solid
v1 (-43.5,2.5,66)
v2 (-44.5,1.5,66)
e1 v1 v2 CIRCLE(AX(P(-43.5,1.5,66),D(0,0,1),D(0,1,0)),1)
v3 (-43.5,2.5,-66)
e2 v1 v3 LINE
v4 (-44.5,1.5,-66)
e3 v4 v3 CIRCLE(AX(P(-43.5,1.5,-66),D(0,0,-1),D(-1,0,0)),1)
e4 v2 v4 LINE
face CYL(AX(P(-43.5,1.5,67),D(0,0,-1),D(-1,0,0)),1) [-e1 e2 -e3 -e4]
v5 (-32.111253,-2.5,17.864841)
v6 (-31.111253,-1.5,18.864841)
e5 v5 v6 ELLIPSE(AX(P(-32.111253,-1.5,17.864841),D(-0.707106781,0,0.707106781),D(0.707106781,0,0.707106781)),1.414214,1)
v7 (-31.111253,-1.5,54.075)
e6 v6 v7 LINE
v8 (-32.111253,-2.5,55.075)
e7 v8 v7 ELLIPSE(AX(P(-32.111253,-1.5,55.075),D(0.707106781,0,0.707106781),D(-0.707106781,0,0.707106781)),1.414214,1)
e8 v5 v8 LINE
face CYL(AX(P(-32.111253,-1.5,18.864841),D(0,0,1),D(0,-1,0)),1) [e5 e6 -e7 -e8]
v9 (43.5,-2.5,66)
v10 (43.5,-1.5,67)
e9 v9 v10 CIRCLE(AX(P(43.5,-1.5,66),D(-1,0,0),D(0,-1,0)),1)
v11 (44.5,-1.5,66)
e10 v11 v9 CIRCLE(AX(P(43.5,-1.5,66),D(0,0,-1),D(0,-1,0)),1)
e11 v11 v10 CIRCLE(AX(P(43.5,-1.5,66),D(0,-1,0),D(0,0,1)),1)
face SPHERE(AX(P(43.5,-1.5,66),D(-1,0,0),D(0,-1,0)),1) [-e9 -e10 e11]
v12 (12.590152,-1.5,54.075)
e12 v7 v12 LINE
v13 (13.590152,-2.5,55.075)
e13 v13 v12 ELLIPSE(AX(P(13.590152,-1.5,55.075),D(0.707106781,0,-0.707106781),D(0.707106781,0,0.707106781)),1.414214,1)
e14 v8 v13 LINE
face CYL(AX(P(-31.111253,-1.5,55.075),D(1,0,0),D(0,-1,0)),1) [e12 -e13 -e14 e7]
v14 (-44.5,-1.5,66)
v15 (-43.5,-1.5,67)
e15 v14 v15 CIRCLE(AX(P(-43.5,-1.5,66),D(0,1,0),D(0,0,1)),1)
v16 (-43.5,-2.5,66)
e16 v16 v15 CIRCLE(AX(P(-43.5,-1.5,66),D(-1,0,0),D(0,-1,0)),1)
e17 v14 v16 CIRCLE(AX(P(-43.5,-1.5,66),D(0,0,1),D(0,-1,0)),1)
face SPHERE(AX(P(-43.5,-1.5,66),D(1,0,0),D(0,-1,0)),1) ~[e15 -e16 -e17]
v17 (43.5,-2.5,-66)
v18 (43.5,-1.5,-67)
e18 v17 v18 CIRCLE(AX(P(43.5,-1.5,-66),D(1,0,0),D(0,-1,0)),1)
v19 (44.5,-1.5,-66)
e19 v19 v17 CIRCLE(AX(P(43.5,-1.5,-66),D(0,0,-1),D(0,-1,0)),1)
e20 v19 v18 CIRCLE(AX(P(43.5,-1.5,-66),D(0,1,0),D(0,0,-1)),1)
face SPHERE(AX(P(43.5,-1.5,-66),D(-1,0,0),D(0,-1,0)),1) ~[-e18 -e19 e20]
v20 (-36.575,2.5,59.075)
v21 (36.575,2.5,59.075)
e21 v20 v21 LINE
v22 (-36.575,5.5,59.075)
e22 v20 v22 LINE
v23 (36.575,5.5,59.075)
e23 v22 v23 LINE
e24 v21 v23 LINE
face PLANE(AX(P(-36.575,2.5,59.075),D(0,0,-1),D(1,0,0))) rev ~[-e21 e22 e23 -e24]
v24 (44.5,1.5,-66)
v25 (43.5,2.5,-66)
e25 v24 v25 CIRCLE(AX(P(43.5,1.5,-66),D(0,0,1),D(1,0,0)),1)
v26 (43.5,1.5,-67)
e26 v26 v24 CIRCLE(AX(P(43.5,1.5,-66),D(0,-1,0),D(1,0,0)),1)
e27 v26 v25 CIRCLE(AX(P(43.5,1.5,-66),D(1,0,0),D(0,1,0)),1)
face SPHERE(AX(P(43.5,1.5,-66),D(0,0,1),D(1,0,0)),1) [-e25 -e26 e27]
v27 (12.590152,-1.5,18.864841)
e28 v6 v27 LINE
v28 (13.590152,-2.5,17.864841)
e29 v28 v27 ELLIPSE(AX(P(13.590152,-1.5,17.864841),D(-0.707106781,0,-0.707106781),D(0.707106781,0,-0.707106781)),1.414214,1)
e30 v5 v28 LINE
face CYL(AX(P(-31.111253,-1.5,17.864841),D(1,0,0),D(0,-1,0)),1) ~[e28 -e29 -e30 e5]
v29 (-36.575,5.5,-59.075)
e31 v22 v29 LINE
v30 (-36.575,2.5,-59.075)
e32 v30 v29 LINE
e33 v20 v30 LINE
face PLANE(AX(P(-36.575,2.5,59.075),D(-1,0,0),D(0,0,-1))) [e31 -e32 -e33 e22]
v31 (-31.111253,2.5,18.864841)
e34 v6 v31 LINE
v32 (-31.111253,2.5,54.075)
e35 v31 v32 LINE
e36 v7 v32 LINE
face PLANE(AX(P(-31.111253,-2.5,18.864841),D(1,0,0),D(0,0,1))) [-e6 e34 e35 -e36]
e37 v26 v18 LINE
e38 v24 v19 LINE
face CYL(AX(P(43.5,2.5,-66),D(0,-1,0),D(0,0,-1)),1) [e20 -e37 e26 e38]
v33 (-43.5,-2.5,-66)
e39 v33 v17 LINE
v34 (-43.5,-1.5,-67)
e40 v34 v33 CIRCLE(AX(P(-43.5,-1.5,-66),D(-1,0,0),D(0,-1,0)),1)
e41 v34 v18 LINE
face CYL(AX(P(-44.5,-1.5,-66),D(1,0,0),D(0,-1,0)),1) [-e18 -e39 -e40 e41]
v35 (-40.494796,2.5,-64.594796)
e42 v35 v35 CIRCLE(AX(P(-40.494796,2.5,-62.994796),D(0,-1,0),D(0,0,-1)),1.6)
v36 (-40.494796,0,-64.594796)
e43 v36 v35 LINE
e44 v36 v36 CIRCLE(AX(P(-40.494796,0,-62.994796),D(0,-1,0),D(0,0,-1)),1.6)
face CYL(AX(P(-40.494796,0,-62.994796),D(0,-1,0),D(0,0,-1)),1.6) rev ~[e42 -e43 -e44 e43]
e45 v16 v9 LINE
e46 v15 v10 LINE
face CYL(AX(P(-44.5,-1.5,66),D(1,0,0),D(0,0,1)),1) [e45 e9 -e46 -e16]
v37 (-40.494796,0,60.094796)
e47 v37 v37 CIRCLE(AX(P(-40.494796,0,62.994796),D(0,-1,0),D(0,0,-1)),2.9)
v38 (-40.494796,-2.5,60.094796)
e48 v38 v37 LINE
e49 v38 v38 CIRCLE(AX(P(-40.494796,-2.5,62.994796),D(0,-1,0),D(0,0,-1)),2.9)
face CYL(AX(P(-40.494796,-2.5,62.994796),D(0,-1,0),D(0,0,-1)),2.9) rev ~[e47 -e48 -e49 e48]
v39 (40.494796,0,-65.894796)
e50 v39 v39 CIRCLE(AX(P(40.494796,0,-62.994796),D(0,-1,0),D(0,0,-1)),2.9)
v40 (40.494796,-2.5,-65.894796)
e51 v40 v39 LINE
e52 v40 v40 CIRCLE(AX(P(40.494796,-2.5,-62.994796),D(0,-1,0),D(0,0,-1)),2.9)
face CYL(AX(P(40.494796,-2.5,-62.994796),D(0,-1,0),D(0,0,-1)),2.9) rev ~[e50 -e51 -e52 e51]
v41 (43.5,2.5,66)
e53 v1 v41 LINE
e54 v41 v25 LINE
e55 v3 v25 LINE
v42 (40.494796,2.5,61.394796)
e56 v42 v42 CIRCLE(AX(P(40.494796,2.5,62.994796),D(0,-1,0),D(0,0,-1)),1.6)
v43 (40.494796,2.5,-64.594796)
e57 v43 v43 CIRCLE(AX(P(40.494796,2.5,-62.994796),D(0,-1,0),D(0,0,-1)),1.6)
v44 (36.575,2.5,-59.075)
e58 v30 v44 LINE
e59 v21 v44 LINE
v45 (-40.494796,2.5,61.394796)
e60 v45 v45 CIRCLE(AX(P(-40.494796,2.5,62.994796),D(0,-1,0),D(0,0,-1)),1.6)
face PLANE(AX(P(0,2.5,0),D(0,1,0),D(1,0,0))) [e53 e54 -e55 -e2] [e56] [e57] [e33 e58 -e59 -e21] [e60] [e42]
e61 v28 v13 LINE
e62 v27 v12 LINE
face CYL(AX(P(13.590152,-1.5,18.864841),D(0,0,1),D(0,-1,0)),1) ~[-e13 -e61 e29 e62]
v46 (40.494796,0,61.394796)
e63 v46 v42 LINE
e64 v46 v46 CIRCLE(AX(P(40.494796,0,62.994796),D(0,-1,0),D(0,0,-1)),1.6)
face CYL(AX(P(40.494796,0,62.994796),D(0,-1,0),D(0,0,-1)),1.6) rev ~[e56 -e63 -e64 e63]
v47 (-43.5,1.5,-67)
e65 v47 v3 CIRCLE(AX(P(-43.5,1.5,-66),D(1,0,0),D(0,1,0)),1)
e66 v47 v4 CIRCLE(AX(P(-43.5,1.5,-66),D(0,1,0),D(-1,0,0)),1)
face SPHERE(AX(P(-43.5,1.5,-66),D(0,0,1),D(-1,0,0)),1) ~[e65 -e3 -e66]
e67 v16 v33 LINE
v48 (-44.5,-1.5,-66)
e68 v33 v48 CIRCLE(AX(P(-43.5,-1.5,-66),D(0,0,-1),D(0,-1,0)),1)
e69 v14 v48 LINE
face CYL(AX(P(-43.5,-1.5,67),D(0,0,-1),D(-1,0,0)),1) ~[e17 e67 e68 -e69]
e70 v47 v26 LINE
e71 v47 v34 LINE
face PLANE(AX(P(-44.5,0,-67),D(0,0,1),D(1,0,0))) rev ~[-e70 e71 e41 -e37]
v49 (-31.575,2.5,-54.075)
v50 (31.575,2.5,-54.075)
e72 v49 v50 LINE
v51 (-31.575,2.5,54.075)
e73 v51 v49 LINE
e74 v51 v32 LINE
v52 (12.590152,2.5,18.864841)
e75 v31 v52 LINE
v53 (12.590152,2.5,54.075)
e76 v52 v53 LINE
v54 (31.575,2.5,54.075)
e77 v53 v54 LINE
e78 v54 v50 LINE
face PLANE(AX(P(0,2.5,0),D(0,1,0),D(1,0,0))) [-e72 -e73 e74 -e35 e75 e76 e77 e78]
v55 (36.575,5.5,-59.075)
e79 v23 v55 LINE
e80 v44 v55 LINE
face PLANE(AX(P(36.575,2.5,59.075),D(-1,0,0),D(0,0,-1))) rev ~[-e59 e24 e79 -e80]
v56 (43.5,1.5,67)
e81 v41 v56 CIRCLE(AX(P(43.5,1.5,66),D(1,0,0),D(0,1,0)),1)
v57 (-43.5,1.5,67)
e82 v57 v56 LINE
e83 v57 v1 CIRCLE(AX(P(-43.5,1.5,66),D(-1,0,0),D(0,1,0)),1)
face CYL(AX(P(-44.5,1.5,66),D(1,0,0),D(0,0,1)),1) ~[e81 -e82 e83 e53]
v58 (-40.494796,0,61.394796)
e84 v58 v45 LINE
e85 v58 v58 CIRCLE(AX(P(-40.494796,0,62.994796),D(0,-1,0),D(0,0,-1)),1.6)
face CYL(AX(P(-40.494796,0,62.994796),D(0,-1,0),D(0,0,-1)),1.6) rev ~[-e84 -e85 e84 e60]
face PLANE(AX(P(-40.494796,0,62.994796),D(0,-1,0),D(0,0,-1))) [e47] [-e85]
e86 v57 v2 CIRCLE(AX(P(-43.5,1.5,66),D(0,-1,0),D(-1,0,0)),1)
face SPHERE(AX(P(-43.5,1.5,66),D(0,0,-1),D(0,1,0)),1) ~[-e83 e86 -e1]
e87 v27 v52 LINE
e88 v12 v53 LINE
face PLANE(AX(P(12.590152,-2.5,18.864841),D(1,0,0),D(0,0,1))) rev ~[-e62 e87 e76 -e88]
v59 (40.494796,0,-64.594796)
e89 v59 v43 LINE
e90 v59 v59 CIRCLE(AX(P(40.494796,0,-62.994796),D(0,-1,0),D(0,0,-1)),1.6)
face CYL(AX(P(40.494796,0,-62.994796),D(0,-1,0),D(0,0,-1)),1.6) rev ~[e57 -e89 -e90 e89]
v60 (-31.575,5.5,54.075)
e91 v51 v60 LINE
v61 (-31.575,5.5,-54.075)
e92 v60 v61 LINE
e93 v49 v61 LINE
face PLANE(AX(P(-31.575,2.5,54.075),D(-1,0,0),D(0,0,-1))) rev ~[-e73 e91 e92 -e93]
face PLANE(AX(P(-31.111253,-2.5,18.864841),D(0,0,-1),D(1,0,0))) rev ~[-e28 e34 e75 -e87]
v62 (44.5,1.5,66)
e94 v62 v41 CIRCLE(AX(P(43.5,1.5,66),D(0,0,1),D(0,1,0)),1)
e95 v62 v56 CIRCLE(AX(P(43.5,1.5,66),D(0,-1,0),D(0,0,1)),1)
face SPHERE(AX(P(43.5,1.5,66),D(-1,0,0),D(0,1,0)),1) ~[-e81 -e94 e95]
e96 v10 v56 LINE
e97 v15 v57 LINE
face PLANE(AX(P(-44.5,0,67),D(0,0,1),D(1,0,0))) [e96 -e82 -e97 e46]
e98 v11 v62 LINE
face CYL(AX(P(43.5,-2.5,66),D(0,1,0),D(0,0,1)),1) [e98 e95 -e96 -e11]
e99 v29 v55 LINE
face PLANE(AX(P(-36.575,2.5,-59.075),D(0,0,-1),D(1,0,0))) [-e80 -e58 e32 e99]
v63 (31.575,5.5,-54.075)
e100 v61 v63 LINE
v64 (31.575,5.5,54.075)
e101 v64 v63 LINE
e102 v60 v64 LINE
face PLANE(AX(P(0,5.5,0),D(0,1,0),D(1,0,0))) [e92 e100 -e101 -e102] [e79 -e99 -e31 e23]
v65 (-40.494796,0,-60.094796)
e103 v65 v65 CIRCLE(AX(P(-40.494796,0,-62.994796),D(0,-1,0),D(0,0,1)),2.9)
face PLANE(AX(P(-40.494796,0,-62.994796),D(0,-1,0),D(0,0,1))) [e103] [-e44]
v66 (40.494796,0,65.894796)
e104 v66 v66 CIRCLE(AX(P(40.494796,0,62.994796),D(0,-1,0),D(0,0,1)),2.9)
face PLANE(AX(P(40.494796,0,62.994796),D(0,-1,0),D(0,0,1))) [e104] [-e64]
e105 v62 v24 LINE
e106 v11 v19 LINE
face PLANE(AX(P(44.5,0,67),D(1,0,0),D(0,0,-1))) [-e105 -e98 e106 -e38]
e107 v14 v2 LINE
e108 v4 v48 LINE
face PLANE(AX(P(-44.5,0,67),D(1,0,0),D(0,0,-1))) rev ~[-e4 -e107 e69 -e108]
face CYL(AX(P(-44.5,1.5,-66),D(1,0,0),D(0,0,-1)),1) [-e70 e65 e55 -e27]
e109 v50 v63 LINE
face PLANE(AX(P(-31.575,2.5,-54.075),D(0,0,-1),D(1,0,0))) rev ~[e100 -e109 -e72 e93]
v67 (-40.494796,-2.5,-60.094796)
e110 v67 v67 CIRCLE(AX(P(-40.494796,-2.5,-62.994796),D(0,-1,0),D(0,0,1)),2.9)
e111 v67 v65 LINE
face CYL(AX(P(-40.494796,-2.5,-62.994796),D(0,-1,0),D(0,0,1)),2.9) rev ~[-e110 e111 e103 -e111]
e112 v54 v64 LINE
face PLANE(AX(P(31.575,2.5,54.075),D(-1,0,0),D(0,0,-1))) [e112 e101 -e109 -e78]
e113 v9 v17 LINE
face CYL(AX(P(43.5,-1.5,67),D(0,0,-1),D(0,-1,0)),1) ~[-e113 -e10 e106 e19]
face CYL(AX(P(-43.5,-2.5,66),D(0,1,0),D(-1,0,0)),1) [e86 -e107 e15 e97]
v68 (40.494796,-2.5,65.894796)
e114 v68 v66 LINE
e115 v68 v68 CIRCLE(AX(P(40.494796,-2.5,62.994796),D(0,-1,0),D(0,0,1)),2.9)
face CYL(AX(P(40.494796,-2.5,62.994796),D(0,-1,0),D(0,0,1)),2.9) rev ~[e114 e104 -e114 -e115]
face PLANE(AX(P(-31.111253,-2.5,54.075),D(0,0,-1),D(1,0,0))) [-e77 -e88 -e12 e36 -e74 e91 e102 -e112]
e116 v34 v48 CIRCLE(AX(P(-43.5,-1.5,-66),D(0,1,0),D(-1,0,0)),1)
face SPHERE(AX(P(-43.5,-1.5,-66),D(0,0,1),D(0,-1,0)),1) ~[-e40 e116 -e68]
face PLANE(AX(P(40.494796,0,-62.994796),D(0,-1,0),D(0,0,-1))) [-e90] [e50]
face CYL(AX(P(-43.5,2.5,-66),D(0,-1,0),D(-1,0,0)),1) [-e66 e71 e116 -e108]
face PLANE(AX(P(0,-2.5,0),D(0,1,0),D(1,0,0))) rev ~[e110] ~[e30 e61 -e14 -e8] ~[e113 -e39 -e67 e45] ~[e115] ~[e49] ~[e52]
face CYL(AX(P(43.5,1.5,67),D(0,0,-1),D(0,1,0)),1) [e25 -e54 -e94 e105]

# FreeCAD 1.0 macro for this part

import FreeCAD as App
import Part
import Sketcher

V = App.Vector


def edges_at(feature, points):
    """Names of the edges that pass closest to the given points."""
    edges = feature.Shape.Edges
    near = lambda p: min(range(len(edges)), key=lambda i: edges[i].distToShape(Part.Vertex(*p))[0])
    return sorted({f"Edge{near(p) + 1}" for p in points})


def add_polygon(sketch, points):
    """Adds a closed chain of lines whose ends are joined by coincident constraints."""
    first, n = sketch.GeometryCount, len(points)
    for a, b in zip(points, points[1:] + points[:1]):
        sketch.addGeometry(Part.LineSegment(App.Vector(*a, 0), App.Vector(*b, 0)), False)
    for i in range(n):
        sketch.addConstraint(Sketcher.Constraint("Coincident", first + i, 2, first + (i + 1) % n, 1))

doc = App.newDocument("Part")
body = doc.addObject("PartDesign::Body", "Body")

sketch1 = doc.addObject("Sketcher::SketchObject", "Sketch")
body.addObject(sketch1)
sketch1.AttachmentSupport = (doc.XZ_Plane, [""])
sketch1.MapMode = "FlatFace"
add_polygon(sketch1, [(-44, -67), (-44, 67), (44, 67), (44, -67)])
sketch1.addConstraint([
    Sketcher.Constraint("Vertical", 0),
    Sketcher.Constraint("Horizontal", 1),
    Sketcher.Constraint("Vertical", 2),
    Sketcher.Constraint("Horizontal", 3),
    Sketcher.Constraint("Symmetric", 0, 2, 2, 2, -1, 1),
    Sketcher.Constraint("DistanceX", 1, 1, 1, 2, 89.0),
    Sketcher.Constraint("DistanceY", 0, 1, 0, 2, 134.0),
])
pad1 = doc.addObject("PartDesign::Pad", "Pad")
body.addObject(pad1)
pad1.Profile = sketch1
pad1.Length = 5
pad1.Midplane = True

sketch2 = doc.addObject("Sketcher::SketchObject", "Sketch001")
body.addObject(sketch2)
sketch2.AttachmentSupport = (doc.XZ_Plane, [""])
sketch2.MapMode = "FlatFace"
sketch2.AttachmentOffset = App.Placement(V(0, 0, -2.5), App.Rotation())
add_polygon(sketch2, [(-37, -59), (-37, 59), (37, 59), (37, -59)])
add_polygon(sketch2, [(32, 54), (-32, 54), (-32, -54), (32, -54)])
sketch2.addConstraint([
    Sketcher.Constraint("Vertical", 0),
    Sketcher.Constraint("Horizontal", 1),
    Sketcher.Constraint("Vertical", 2),
    Sketcher.Constraint("Horizontal", 3),
    Sketcher.Constraint("Horizontal", 4),
    Sketcher.Constraint("Vertical", 5),
    Sketcher.Constraint("Horizontal", 6),
    Sketcher.Constraint("Vertical", 7),
    Sketcher.Constraint("Symmetric", 0, 2, 2, 2, -1, 1),
    Sketcher.Constraint("Symmetric", 4, 2, 6, 2, -1, 1),
    Sketcher.Constraint("DistanceX", 0, 2, 4, 2, 5.0),
    Sketcher.Constraint("DistanceY", 4, 2, 0, 2, 5.0),
    Sketcher.Constraint("DistanceX", 1, 1, 1, 2, 73.15),
    Sketcher.Constraint("DistanceY", 0, 1, 0, 2, 118.15),
])
pad2 = doc.addObject("PartDesign::Pad", "Pad001")
body.addObject(pad2)
pad2.Profile = sketch2
pad2.Length = 3
pad2.Reversed = True

sketch3 = doc.addObject("Sketcher::SketchObject", "Sketch002")
body.addObject(sketch3)
sketch3.AttachmentSupport = (doc.XZ_Plane, [""])
sketch3.MapMode = "FlatFace"
sketch3.AttachmentOffset = App.Placement(V(0, 0, 2.5), App.Rotation())
add_polygon(sketch3, [(-31, 54), (-31, 19), (13, 19), (13, 54)])
sketch3.addConstraint([
    Sketcher.Constraint("Vertical", 0),
    Sketcher.Constraint("Horizontal", 1),
    Sketcher.Constraint("Vertical", 2),
    Sketcher.Constraint("Horizontal", 3),
    Sketcher.Constraint("DistanceY", -1, 1, 2, 2, 54.075),
    Sketcher.Constraint("DistanceY", 0, 2, 0, 1, 35.210159),
    Sketcher.Constraint("DistanceX", 1, 1, 1, 2, 43.701405),
    Sketcher.Constraint("DistanceX", 0, 2, -1, 1, 31.111253),
])
pocket1 = doc.addObject("PartDesign::Pocket", "Pocket")
body.addObject(pocket1)
pocket1.Profile = sketch3
pocket1.Type = "UpToFirst"
doc.recompute()

fillet = doc.addObject("PartDesign::Fillet", "Fillet")
body.addObject(fillet)
fillet.Base = (pocket1, edges_at(pocket1, [
    (-44.5, 2.5, 0),
    (0, 2.5, 67),
    (-31.111, -2.5, 36.47),
    (-9.261, -2.5, 18.865),
    (12.59, -2.5, 36.47),
    (-9.261, -2.5, 54.075),
    (44.5, 2.5, 0),
    (0, -2.5, 67),
    (-44.5, -2.5, 0),
    (0, -2.5, -67),
    (44.5, -2.5, 0),
    (44.5, 0, 67),
    (-44.5, 0, 67),
    (-44.5, 0, -67),
    (44.5, 0, -67),
    (0, 2.5, -67),
]))
fillet.Radius = 1

sketch4 = doc.addObject("Sketcher::SketchObject", "Sketch003")
body.addObject(sketch4)
sketch4.AttachmentSupport = (doc.XZ_Plane, [""])
sketch4.MapMode = "FlatFace"
sketch4.AttachmentOffset = App.Placement(V(0, 0, 2.5), App.Rotation())
sketch4.addGeometry([
    Part.Circle(V(40.5, -63, 0), V(0, 0, 1), 2.9),
    Part.Circle(V(-40.5, -63, 0), V(0, 0, 1), 2.9),
    Part.Circle(V(40.5, 63, 0), V(0, 0, 1), 2.9),
    Part.Circle(V(-40.5, 63, 0), V(0, 0, 1), 2.9),
], False)
sketch4.addConstraint([
    Sketcher.Constraint("Equal", 0, 1),
    Sketcher.Constraint("Equal", 1, 2),
    Sketcher.Constraint("Equal", 2, 3),
    Sketcher.Constraint("Symmetric", 1, 3, 2, 3, -1, 1),
    Sketcher.Constraint("Symmetric", 0, 3, 3, 3, -1, 1),
    Sketcher.Constraint("Symmetric", 0, 3, 1, 3, -2),
    Sketcher.Constraint("Diameter", 0, 5.8),
    Sketcher.Constraint("DistanceX", -1, 1, 0, 3, 40.494796),
    Sketcher.Constraint("DistanceY", 0, 3, -1, 1, 62.994796),
])
pocket2 = doc.addObject("PartDesign::Pocket", "Pocket001")
body.addObject(pocket2)
pocket2.Profile = sketch4
pocket2.Length = 2.5

sketch5 = doc.addObject("Sketcher::SketchObject", "Sketch004")
body.addObject(sketch5)
sketch5.AttachmentSupport = (doc.XZ_Plane, [""])
sketch5.MapMode = "FlatFace"
sketch5.addGeometry(Part.Circle(V(40.5, -63, 0), V(0, 0, 1), 1.6), False)
sketch5.addConstraint([
    Sketcher.Constraint("Diameter", 0, 3.2),
    Sketcher.Constraint("DistanceX", -1, 1, 0, 3, 40.494796),
    Sketcher.Constraint("DistanceY", 0, 3, -1, 1, 62.994796),
])
pocket3 = doc.addObject("PartDesign::Pocket", "Pocket002")
body.addObject(pocket3)
pocket3.Profile = sketch5
pocket3.Type = "UpToFirst"

sketch6 = doc.addObject("Sketcher::SketchObject", "Sketch005")
body.addObject(sketch6)
sketch6.AttachmentSupport = (doc.XZ_Plane, [""])
sketch6.MapMode = "FlatFace"
sketch6.addGeometry(Part.Circle(V(-40.5, -63, 0), V(0, 0, 1), 1.6), False)
sketch6.addConstraint([
    Sketcher.Constraint("Diameter", 0, 3.2),
    Sketcher.Constraint("DistanceX", 0, 3, -1, 1, 40.494796),
    Sketcher.Constraint("DistanceY", 0, 3, -1, 1, 62.994796),
])
pocket4 = doc.addObject("PartDesign::Pocket", "Pocket003")
body.addObject(pocket4)
pocket4.Profile = sketch6
pocket4.Type = "UpToFirst"

sketch7 = doc.addObject("Sketcher::SketchObject", "Sketch006")
body.addObject(sketch7)
sketch7.AttachmentSupport = (doc.XZ_Plane, [""])
sketch7.MapMode = "FlatFace"
sketch7.addGeometry(Part.Circle(V(40.5, 63, 0), V(0, 0, 1), 1.6), False)
sketch7.addConstraint([
    Sketcher.Constraint("Diameter", 0, 3.2),
    Sketcher.Constraint("DistanceX", -1, 1, 0, 3, 40.494796),
    Sketcher.Constraint("DistanceY", -1, 1, 0, 3, 62.994796),
])
pocket5 = doc.addObject("PartDesign::Pocket", "Pocket004")
body.addObject(pocket5)
pocket5.Profile = sketch7
pocket5.Type = "UpToFirst"

sketch8 = doc.addObject("Sketcher::SketchObject", "Sketch007")
body.addObject(sketch8)
sketch8.AttachmentSupport = (doc.XZ_Plane, [""])
sketch8.MapMode = "FlatFace"
sketch8.addGeometry(Part.Circle(V(-40.5, 63, 0), V(0, 0, 1), 1.6), False)
sketch8.addConstraint([
    Sketcher.Constraint("Diameter", 0, 3.2),
    Sketcher.Constraint("DistanceX", 0, 3, -1, 1, 40.494796),
    Sketcher.Constraint("DistanceY", -1, 1, 0, 3, 62.994796),
])
pocket6 = doc.addObject("PartDesign::Pocket", "Pocket005")
body.addObject(pocket6)
pocket6.Profile = sketch8
pocket6.Type = "UpToFirst"

doc.recompute()
